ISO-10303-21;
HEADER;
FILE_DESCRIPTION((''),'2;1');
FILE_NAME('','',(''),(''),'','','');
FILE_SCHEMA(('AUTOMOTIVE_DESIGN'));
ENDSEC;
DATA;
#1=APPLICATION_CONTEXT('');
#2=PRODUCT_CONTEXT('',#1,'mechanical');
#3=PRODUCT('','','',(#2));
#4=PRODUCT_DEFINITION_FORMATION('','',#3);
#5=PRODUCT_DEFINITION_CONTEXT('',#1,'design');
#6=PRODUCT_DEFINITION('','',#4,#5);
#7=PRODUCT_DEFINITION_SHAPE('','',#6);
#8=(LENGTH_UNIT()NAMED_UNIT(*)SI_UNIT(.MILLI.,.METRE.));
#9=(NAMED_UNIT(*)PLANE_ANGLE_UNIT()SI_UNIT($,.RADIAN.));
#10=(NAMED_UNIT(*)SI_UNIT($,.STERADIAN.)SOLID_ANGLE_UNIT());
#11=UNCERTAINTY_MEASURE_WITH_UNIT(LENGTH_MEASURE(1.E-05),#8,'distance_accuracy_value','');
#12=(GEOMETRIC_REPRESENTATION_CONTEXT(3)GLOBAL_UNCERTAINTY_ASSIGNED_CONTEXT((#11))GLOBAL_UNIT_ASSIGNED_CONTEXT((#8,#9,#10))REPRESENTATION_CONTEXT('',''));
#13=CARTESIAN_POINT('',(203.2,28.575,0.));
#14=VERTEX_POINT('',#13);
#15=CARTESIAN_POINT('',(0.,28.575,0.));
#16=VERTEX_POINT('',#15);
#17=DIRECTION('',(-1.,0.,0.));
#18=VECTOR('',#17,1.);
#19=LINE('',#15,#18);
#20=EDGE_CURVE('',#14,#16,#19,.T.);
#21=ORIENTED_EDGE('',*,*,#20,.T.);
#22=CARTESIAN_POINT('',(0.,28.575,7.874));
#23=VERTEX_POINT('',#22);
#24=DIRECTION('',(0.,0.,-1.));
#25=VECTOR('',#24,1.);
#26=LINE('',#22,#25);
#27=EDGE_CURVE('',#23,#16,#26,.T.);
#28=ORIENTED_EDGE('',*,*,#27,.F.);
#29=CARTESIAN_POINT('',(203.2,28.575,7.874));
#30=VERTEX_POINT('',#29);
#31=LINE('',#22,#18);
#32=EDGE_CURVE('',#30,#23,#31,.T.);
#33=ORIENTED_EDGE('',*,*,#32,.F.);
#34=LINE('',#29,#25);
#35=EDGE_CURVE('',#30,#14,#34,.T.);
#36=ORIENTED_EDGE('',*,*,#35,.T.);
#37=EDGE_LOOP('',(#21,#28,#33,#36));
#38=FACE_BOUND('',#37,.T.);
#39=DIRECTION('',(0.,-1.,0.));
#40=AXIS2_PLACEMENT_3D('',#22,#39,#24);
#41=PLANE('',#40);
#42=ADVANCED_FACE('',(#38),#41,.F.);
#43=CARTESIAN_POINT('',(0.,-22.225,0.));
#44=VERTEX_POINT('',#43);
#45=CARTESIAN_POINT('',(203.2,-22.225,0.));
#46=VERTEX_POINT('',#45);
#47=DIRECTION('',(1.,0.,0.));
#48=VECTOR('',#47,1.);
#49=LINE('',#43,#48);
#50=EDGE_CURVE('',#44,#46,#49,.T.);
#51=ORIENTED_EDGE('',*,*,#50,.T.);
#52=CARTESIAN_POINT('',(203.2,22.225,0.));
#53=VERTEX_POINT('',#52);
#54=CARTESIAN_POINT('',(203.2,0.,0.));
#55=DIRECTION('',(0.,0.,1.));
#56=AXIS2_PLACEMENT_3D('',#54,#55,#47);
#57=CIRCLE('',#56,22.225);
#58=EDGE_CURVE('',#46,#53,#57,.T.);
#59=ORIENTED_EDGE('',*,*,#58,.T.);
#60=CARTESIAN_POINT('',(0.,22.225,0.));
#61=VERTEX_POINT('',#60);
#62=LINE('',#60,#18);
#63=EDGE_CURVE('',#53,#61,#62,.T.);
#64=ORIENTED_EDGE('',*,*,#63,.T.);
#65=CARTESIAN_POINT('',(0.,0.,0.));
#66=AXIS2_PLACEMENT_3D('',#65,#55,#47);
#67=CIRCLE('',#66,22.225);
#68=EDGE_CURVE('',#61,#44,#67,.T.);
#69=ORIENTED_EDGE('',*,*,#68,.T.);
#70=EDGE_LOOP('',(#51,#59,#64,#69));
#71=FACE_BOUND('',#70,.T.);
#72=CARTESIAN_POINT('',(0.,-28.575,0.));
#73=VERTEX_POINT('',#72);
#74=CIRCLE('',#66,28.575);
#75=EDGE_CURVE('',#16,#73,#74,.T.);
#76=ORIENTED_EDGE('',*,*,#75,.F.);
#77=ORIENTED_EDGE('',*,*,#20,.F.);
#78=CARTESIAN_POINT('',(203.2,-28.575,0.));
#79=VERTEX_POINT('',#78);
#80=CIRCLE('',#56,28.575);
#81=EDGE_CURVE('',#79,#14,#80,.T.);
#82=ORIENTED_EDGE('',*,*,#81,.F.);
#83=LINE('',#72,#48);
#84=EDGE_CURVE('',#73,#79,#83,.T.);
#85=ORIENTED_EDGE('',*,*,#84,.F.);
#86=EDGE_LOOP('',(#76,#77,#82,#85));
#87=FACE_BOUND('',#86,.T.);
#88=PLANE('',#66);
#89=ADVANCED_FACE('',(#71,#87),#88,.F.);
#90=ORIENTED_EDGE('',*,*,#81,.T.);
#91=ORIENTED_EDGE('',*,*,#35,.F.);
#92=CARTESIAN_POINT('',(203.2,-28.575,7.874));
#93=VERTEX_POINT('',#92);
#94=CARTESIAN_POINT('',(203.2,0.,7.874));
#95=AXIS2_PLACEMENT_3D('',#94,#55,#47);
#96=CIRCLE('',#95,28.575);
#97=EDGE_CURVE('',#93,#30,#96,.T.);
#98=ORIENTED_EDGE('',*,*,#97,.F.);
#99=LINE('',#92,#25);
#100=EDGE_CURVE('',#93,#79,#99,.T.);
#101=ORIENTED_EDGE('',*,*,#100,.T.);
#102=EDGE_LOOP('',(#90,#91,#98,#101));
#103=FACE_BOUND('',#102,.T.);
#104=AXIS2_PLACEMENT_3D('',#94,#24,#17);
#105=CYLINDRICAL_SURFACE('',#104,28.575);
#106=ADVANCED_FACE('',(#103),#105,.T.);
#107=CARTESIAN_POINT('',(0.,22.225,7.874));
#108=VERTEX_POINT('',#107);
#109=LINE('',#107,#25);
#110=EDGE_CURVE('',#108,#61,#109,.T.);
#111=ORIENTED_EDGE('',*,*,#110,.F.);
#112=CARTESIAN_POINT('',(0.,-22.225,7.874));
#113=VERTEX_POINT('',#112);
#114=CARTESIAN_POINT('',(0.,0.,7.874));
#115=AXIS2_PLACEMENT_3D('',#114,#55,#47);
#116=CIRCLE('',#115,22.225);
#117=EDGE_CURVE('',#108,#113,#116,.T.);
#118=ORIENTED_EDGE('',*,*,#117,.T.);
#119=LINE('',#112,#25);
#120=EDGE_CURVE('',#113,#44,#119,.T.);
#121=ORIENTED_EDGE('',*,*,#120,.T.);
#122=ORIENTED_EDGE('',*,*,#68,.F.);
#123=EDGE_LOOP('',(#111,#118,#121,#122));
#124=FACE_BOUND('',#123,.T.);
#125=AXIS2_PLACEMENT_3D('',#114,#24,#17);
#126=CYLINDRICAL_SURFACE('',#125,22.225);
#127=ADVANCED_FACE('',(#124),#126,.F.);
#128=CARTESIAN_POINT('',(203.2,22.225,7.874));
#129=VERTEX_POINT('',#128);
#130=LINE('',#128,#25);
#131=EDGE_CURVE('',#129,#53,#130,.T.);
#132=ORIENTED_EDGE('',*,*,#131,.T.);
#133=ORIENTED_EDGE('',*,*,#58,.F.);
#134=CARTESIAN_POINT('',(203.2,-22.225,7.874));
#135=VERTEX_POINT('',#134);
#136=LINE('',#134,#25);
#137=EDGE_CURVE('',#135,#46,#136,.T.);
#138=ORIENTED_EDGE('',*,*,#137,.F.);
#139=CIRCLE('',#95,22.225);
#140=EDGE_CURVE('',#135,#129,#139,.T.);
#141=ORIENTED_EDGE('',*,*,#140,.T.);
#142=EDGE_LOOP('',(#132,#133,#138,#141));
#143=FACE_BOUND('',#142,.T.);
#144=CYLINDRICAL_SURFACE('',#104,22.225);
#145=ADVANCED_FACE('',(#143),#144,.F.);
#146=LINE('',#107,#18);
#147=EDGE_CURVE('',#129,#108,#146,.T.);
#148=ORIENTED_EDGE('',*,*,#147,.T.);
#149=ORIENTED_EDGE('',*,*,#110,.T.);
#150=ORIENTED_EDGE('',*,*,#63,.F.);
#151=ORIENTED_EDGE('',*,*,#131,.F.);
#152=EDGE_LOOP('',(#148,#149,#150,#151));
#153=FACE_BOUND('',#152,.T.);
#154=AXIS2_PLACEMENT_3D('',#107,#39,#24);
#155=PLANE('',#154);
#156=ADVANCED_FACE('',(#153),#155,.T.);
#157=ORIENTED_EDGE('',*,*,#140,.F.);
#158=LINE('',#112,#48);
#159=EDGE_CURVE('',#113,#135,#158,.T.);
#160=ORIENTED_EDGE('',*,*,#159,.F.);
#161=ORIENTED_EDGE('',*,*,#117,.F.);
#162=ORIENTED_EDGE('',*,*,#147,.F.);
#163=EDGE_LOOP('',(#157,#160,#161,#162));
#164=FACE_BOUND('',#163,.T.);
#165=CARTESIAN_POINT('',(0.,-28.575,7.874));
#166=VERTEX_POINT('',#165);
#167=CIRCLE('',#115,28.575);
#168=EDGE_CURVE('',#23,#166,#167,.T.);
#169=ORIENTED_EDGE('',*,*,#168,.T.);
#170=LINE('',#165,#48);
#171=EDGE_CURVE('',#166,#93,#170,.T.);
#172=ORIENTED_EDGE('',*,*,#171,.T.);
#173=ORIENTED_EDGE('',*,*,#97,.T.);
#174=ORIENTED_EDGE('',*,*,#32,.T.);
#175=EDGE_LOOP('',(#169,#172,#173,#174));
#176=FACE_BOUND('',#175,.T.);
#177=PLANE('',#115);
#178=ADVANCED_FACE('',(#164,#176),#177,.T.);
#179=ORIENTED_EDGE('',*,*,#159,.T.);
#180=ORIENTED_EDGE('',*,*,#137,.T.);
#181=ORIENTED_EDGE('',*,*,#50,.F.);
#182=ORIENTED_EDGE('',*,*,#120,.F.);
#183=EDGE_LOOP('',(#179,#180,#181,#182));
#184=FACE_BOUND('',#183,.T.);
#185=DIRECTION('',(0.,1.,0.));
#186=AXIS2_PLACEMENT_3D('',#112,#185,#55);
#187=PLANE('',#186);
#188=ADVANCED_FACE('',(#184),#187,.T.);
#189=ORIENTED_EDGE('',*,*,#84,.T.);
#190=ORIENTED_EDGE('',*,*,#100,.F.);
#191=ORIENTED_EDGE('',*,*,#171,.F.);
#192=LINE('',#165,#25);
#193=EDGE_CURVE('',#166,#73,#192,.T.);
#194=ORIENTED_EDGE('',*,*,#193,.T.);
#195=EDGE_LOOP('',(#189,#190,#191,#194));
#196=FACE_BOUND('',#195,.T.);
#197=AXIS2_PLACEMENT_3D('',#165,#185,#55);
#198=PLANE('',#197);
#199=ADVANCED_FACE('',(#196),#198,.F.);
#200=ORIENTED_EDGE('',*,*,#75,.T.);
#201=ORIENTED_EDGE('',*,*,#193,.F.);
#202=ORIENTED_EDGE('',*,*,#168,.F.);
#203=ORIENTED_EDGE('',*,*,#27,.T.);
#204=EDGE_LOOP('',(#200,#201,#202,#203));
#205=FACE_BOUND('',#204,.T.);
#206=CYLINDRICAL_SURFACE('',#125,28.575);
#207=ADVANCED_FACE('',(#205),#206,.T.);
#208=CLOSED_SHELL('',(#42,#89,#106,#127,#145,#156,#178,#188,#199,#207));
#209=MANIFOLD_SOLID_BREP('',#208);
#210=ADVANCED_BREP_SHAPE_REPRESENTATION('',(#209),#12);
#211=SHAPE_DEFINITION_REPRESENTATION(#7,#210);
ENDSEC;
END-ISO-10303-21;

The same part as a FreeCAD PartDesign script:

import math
import FreeCAD as App
import Part
import Sketcher
from FreeCAD import Vector
Q = App.Units.Quantity

doc = App.newDocument("Part")
body = doc.addObject("PartDesign::Body", "Body")

# Sketch on XY plane
sketch1 = body.newObject("Sketcher::SketchObject", "Sketch")
sketch1.AttachmentSupport = (doc.getObject("XY_Plane"), [""])
sketch1.MapMode = "FlatFace"
sketch1.addGeometry(Part.LineSegment(Vector(203, 29, 0), Vector(0, 29, 0)), False)
sketch1.addGeometry(Part.ArcOfCircle(Part.Circle(Vector(0, 0, 0), Vector(0, 0, 1), 29), math.radians(90), math.radians(270)), False)
sketch1.addGeometry(Part.LineSegment(Vector(0, -29, 0), Vector(203, -29, 0)), False)
sketch1.addGeometry(Part.ArcOfCircle(Part.Circle(Vector(203, 0, 0), Vector(0, 0, 1), 29), math.radians(-90), math.radians(90)), False)
sketch1.addGeometry(Part.LineSegment(Vector(0, 22, 0), Vector(203, 22, 0)), False)
sketch1.addGeometry(Part.ArcOfCircle(Part.Circle(Vector(203, 0, 0), Vector(0, 0, 1), 22), math.radians(-90), math.radians(90)), False)
sketch1.addGeometry(Part.LineSegment(Vector(203, -22, 0), Vector(0, -22, 0)), False)
sketch1.addGeometry(Part.ArcOfCircle(Part.Circle(Vector(0, 0, 0), Vector(0, 0, 1), 22), math.radians(90), math.radians(270)), False)
sketch1.addConstraint(Sketcher.Constraint("Tangent", 0, 2, 1, 1))
sketch1.addConstraint(Sketcher.Constraint("Tangent", 1, 2, 2, 1))
sketch1.addConstraint(Sketcher.Constraint("Tangent", 2, 2, 3, 1))
sketch1.addConstraint(Sketcher.Constraint("Tangent", 3, 2, 0, 1))
sketch1.addConstraint(Sketcher.Constraint("Tangent", 4, 2, 5, 2))
sketch1.addConstraint(Sketcher.Constraint("Tangent", 5, 1, 6, 1))
sketch1.addConstraint(Sketcher.Constraint("Tangent", 6, 2, 7, 2))
sketch1.addConstraint(Sketcher.Constraint("Tangent", 7, 1, 4, 1))
sketch1.addConstraint(Sketcher.Constraint("Horizontal", 0))
sketch1.addConstraint(Sketcher.Constraint("Horizontal", 2))
sketch1.addConstraint(Sketcher.Constraint("Horizontal", 4))
sketch1.addConstraint(Sketcher.Constraint("Horizontal", 6))
sketch1.addConstraint(Sketcher.Constraint("Coincident", 1, 3, -1, 1))
sketch1.addConstraint(Sketcher.Constraint("Coincident", 7, 3, -1, 1))
sketch1.addConstraint(Sketcher.Constraint("Vertical", 5, 3, 2, 2))
sketch1.addConstraint(Sketcher.Constraint("DistanceX", 0, 2, 0, 1, Q("8 in")))
sketch1.addConstraint(Sketcher.Constraint("Radius", 1, Q("1.125 in")))
sketch1.addConstraint(Sketcher.Constraint("Radius", 5, Q("0.875 in")))
pad1 = body.newObject("PartDesign::Pad", "Pad")
pad1.Profile = sketch1
pad1.Length = Q("0.31 in")

doc.recompute()
